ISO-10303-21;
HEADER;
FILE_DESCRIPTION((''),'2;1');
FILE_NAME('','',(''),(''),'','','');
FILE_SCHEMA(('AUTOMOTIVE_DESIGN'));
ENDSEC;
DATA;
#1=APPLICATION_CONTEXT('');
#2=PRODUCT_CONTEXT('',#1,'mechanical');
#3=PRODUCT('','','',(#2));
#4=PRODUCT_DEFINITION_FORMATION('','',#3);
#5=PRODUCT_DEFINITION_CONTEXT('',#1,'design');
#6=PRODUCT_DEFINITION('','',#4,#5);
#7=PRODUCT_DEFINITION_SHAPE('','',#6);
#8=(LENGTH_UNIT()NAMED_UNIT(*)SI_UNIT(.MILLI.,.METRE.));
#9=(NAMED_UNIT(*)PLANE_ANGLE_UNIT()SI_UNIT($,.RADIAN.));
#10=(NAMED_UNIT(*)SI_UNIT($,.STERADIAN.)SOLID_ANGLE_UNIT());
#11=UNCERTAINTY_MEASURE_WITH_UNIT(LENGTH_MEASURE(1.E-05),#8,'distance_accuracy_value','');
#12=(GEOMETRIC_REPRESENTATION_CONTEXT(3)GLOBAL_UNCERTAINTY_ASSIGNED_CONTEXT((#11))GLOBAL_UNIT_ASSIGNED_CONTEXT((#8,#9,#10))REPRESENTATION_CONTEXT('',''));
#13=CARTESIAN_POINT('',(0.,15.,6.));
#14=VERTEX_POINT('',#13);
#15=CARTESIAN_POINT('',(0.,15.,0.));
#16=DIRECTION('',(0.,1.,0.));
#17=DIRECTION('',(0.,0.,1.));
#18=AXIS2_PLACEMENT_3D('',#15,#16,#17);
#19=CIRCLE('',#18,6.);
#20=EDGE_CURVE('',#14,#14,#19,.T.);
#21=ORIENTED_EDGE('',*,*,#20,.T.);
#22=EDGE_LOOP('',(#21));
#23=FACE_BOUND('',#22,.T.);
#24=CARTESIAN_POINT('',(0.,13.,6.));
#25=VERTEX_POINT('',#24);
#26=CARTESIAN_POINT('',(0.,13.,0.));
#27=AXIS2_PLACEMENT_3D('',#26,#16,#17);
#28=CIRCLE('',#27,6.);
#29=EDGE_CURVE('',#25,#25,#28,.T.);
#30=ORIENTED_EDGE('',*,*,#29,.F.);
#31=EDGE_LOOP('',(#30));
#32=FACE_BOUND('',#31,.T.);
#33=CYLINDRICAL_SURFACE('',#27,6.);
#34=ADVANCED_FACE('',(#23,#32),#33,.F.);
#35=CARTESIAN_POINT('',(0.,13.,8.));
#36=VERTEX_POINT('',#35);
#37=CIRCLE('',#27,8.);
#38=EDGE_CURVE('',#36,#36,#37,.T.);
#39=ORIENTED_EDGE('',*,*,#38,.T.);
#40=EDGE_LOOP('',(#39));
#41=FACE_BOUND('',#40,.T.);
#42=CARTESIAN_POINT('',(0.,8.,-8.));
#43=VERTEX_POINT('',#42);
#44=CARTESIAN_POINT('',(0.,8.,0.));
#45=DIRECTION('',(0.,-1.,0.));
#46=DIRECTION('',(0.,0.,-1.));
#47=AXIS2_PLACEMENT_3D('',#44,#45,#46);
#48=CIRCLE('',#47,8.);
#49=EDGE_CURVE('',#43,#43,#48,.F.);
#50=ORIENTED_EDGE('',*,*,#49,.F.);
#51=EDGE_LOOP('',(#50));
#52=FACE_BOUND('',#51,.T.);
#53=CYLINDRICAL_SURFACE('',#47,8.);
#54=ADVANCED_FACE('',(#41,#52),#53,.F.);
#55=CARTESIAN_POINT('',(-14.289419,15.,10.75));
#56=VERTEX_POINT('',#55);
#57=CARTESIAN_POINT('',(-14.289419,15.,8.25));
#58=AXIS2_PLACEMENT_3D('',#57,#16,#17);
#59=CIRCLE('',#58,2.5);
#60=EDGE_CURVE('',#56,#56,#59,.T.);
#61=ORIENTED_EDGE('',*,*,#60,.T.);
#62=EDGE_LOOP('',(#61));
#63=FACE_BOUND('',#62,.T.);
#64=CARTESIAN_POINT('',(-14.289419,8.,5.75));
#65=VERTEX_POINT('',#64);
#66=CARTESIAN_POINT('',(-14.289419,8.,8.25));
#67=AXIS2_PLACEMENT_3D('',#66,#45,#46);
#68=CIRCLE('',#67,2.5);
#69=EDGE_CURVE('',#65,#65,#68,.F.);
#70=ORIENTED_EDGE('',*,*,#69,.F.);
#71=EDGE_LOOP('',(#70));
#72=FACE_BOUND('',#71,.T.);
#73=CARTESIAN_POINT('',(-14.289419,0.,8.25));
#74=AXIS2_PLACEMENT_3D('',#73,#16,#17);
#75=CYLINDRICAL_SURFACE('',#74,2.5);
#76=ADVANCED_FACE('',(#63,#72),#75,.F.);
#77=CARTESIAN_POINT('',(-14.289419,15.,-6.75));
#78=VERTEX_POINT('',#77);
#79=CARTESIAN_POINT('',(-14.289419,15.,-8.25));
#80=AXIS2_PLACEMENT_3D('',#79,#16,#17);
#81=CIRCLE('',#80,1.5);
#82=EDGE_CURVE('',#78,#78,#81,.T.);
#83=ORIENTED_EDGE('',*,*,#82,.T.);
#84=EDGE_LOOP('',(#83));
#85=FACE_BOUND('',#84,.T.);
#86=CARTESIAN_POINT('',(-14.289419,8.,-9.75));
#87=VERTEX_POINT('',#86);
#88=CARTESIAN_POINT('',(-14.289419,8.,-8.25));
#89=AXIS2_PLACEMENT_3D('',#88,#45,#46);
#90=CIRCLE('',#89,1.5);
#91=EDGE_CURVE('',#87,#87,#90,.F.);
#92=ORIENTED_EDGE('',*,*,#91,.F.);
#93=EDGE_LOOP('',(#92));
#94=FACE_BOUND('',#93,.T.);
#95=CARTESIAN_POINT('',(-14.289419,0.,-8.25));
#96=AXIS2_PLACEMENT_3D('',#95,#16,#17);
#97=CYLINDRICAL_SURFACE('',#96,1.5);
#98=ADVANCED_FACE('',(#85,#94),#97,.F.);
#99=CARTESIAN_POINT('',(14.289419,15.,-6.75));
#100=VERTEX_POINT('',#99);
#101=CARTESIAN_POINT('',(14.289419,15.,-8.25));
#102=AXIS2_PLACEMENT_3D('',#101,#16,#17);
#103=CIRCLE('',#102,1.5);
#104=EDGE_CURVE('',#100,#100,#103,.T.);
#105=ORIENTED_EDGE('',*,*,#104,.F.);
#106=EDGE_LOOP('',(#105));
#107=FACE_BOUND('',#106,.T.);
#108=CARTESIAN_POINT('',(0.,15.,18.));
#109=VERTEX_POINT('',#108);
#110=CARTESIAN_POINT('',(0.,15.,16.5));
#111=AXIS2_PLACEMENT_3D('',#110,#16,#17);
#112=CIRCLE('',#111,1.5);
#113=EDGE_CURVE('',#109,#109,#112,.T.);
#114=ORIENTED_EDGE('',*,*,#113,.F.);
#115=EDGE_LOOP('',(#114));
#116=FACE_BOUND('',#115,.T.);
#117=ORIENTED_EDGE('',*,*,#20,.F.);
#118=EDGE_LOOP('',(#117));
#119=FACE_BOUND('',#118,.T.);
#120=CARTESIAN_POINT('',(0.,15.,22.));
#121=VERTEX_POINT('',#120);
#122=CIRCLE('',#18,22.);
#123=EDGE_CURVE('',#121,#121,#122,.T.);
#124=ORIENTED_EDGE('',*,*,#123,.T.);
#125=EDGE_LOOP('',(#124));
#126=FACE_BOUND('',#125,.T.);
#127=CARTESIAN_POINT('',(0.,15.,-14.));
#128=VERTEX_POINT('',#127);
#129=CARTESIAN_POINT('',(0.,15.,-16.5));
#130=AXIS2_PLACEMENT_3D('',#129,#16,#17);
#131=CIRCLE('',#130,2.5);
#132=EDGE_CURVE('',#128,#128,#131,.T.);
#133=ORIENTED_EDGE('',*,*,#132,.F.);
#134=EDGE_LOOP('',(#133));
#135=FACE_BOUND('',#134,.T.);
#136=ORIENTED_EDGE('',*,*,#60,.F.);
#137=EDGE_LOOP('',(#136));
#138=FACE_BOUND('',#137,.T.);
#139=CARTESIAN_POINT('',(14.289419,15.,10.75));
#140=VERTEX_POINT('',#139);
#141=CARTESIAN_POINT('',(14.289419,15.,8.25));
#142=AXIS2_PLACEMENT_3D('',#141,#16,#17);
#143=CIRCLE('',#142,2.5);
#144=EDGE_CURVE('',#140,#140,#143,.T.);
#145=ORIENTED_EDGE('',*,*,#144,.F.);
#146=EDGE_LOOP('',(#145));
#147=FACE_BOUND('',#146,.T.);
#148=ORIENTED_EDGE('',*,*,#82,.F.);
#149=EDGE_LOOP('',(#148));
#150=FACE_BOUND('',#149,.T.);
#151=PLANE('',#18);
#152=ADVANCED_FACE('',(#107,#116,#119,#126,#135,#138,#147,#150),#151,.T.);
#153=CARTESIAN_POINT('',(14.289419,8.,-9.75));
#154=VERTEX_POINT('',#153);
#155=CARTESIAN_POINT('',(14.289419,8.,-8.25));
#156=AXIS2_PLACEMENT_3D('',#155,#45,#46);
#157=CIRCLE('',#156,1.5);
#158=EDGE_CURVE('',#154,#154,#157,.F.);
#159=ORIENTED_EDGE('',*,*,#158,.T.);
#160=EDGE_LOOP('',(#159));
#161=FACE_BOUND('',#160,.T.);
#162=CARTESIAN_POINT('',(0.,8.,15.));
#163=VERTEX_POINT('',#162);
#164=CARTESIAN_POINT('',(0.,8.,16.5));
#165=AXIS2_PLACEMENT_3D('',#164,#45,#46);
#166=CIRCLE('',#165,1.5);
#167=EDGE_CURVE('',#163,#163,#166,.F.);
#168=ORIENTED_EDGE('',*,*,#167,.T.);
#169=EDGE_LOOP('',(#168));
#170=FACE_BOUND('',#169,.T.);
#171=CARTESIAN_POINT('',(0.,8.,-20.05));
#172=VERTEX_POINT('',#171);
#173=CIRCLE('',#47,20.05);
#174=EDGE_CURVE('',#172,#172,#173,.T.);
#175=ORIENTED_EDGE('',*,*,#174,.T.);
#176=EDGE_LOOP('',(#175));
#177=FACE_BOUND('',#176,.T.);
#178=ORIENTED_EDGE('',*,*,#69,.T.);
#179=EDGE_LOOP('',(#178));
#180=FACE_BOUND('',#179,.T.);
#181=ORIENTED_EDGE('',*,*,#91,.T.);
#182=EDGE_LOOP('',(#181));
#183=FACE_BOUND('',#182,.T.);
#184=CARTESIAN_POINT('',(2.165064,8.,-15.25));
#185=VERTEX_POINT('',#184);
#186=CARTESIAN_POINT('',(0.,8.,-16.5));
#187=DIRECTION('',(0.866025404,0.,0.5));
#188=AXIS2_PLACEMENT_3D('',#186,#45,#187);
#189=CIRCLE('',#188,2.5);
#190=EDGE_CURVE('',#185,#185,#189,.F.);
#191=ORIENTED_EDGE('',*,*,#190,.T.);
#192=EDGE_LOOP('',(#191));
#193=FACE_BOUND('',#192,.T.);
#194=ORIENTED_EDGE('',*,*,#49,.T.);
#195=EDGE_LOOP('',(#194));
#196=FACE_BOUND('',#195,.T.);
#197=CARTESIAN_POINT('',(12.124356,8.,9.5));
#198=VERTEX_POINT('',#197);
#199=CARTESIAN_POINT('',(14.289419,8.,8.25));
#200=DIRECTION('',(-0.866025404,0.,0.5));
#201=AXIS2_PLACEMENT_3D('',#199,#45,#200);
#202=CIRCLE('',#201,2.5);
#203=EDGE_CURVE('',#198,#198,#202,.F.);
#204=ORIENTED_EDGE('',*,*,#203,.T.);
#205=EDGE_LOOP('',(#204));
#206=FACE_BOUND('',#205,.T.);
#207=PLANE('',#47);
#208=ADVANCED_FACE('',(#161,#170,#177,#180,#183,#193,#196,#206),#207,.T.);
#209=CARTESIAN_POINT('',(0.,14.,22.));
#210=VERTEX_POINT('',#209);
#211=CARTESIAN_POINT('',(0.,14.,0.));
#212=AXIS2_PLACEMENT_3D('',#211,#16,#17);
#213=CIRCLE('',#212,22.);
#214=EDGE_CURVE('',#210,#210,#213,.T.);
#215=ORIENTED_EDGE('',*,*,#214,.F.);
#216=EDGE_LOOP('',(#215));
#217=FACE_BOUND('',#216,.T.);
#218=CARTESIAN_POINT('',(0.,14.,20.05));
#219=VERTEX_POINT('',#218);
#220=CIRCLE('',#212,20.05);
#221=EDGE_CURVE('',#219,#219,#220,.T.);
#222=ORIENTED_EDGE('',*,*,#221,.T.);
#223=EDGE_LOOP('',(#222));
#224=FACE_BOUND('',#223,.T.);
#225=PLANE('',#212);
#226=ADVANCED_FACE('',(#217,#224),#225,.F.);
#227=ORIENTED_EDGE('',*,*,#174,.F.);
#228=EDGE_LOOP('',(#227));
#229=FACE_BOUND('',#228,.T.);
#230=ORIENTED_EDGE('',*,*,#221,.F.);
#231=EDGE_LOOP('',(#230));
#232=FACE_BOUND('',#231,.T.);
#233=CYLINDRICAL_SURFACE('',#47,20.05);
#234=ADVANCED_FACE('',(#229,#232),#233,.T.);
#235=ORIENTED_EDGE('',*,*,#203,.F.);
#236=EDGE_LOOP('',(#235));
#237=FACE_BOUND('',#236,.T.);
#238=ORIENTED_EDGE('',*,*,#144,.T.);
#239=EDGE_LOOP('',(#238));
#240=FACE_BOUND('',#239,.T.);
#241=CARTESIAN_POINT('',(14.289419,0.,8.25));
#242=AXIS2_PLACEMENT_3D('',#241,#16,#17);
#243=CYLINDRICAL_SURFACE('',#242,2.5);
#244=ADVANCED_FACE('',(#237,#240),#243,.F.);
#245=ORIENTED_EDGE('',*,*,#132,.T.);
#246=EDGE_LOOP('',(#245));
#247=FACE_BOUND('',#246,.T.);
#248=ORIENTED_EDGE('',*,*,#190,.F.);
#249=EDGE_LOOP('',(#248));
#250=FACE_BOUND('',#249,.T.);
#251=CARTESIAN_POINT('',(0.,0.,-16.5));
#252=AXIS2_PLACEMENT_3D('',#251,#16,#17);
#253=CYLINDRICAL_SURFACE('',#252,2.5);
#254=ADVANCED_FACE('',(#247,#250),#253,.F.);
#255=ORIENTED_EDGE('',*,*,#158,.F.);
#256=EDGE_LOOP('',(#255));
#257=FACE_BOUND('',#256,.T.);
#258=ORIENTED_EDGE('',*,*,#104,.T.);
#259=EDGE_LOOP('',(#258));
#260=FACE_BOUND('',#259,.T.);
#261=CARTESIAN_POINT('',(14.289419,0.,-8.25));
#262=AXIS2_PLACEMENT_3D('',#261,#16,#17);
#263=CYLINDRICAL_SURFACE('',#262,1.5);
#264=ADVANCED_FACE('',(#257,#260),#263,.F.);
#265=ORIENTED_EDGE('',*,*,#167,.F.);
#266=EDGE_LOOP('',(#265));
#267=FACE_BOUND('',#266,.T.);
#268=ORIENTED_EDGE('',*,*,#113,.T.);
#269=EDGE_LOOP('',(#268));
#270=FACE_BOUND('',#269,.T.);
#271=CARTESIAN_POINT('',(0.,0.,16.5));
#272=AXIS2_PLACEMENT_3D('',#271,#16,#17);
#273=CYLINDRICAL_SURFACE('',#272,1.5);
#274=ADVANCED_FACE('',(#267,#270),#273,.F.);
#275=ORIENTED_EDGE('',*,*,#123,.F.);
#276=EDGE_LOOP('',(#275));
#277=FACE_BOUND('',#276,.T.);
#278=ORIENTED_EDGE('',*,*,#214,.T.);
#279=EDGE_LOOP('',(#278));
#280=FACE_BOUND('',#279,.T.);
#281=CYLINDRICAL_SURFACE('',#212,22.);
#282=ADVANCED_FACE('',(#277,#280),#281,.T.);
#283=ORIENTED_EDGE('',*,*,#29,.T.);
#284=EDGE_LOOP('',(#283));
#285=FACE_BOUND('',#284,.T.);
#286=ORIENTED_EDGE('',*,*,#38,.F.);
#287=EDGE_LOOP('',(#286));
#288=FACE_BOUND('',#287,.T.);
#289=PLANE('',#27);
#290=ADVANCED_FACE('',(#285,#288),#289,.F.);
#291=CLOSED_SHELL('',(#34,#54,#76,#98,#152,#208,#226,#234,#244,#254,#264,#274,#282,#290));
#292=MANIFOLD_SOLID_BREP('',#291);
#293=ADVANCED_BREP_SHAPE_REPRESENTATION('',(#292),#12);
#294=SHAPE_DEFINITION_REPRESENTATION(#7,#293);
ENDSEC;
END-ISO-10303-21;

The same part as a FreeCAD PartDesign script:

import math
import FreeCAD as App
import Part
import Sketcher
from FreeCAD import Vector


def edges_at(feature, points):
    """Names of the edges that pass closest to the given points."""
    edges = feature.Shape.Edges
    near = lambda p: min(range(len(edges)), key=lambda i: edges[i].distToShape(Part.Vertex(*p))[0])
    return sorted({f"Edge{near(p) + 1}" for p in points})

doc = App.newDocument("Part")
body = doc.addObject("PartDesign::Body", "Body")

# Sketch on XZ plane
sketch1 = doc.addObject("Sketcher::SketchObject", "Sketch")
body.addObject(sketch1)
sketch1.AttachmentSupport = (doc.XZ_Plane, [""])
sketch1.MapMode = "FlatFace"
sketch1.addGeometry([
    Part.Circle(Vector(0, 0, 0), Vector(0, 0, 1), 20),
    Part.Circle(Vector(0, 0, 0), Vector(0, 0, 1), 8),
], False)
sketch1.addConstraint([
    Sketcher.Constraint("Coincident", 0, 3, -1, 1),
    Sketcher.Constraint("Coincident", 1, 3, -1, 1),
    Sketcher.Constraint("Diameter", 1, 16.0),
    Sketcher.Constraint("Diameter", 0, 40.1),
])
pad1 = doc.addObject("PartDesign::Pad", "Pad")
body.addObject(pad1)
pad1.Profile = sketch1
pad1.Length = 8
pad1.Reversed = True

# Sketch on XZ plane
sketch2 = doc.addObject("Sketcher::SketchObject", "Sketch001")
body.addObject(sketch2)
sketch2.AttachmentSupport = (doc.XZ_Plane, [""])
sketch2.MapMode = "FlatFace"
sketch2.AttachmentOffset = App.Placement(Vector(0, 0, -8), App.Rotation())
sketch2.addGeometry([
    Part.Circle(Vector(0, 0, 0), Vector(0, 0, 1), 20),
    Part.Circle(Vector(0, 0, 0), Vector(0, 0, 1), 8),
], False)
sketch2.addConstraint([
    Sketcher.Constraint("Coincident", 0, 3, -1, 1),
    Sketcher.Constraint("Coincident", 1, 3, -1, 1),
    Sketcher.Constraint("Diameter", 1, 16.0),
    Sketcher.Constraint("Diameter", 0, 40.1),
])
pad2 = doc.addObject("PartDesign::Pad", "Pad001")
body.addObject(pad2)
pad2.Profile = sketch2
pad2.Length = 7
pad2.Reversed = True

# Sketch on XZ plane
sketch3 = doc.addObject("Sketcher::SketchObject", "Sketch002")
body.addObject(sketch3)
sketch3.AttachmentSupport = (doc.XZ_Plane, [""])
sketch3.MapMode = "FlatFace"
sketch3.AttachmentOffset = App.Placement(Vector(0, 0, -13), App.Rotation())
sketch3.addGeometry([
    Part.Circle(Vector(0, 0, 0), Vector(0, 0, 1), 8),
    Part.Circle(Vector(0, 0, 0), Vector(0, 0, 1), 6),
], False)
sketch3.addConstraint([
    Sketcher.Constraint("Coincident", 0, 3, -1, 1),
    Sketcher.Constraint("Coincident", 1, 3, -1, 1),
    Sketcher.Constraint("Diameter", 0, 16.0),
    Sketcher.Constraint("Diameter", 1, 12.0),
])
pad3 = doc.addObject("PartDesign::Pad", "Pad002")
body.addObject(pad3)
pad3.Profile = sketch3
pad3.Length = 2
pad3.Reversed = True

# Sketch on XZ plane
sketch4 = doc.addObject("Sketcher::SketchObject", "Sketch003")
body.addObject(sketch4)
sketch4.AttachmentSupport = (doc.XZ_Plane, [""])
sketch4.MapMode = "FlatFace"
sketch4.AttachmentOffset = App.Placement(Vector(0, 0, -15), App.Rotation())
sketch4.addGeometry([
    Part.Circle(Vector(0, -16.5, 0), Vector(0, 0, 1), 2.5),  # 0
    Part.Circle(Vector(14.3, 8.2, 0), Vector(0, 0, 1), 2.5),  # 1
    Part.Circle(Vector(-14.3, 8.2, 0), Vector(0, 0, 1), 2.5),  # 2
    Part.Circle(Vector(0, 16.5, 0), Vector(0, 0, 1), 1.5),  # 3
    Part.Circle(Vector(-14.3, -8.2, 0), Vector(0, 0, 1), 1.5),  # 4
    Part.Circle(Vector(14.3, -8.2, 0), Vector(0, 0, 1), 1.5),  # 5
], False)
sketch4.addConstraint([
    Sketcher.Constraint("Equal", 0, 1),
    Sketcher.Constraint("Equal", 1, 2),
    Sketcher.Constraint("Equal", 3, 4),
    Sketcher.Constraint("Equal", 4, 5),
    Sketcher.Constraint("Symmetric", 0, 3, 3, 3, -1, 1),
    Sketcher.Constraint("Symmetric", 1, 3, 4, 3, -1, 1),
    Sketcher.Constraint("Symmetric", 2, 3, 5, 3, -1, 1),
    Sketcher.Constraint("Symmetric", 1, 3, 2, 3, -2),
    Sketcher.Constraint("PointOnObject", 0, 3, -2),
    Sketcher.Constraint("Diameter", 0, 5.0),
    Sketcher.Constraint("Diameter", 3, 3.0),
    Sketcher.Constraint("DistanceY", 0, 3, 3, 3, 33.0),
    Sketcher.Constraint("DistanceY", 4, 3, 2, 3, 16.5),
    Sketcher.Constraint("DistanceX", -1, 1, 1, 3, 14.289419),
])
pocket1 = doc.addObject("PartDesign::Pocket", "Pocket")
body.addObject(pocket1)
pocket1.Profile = sketch4
pocket1.Type = "ThroughAll"
pocket1.Reversed = True

# Sketch on XZ plane
sketch5 = doc.addObject("Sketcher::SketchObject", "Sketch004")
body.addObject(sketch5)
sketch5.AttachmentSupport = (doc.XZ_Plane, [""])
sketch5.MapMode = "FlatFace"
sketch5.addGeometry([
    Part.ArcOfCircle(Part.Circle(Vector(0, 0, 0), Vector(0, 0, 1), 8), math.radians(108.19), math.radians(114.62)),  # 0
    Part.LineSegment(Vector(-2.5, 7.6, 0), Vector(-6.3, 19, 0)),  # 1
    Part.ArcOfCircle(Part.Circle(Vector(0, 0, 0), Vector(0, 0, 1), 20), math.radians(108.19), math.radians(116.74)),  # 2
    Part.ArcOfCircle(Part.Circle(Vector(0, 0, 0), Vector(0, 0, 1), 20), math.radians(117), math.radians(183)),  # 3
    Part.ArcOfCircle(Part.Circle(Vector(0, 0, 0), Vector(0, 0, 1), 20), math.radians(-176.74), math.radians(-168.19)),  # 4
    Part.LineSegment(Vector(-19.6, -4.1, 0), Vector(-7.8, -1.6, 0)),  # 5
    Part.ArcOfCircle(Part.Circle(Vector(0, 0, 0), Vector(0, 0, 1), 8), math.radians(-174.62), math.radians(-168.19)),  # 6
    Part.ArcOfCircle(Part.Circle(Vector(0, 0, 0), Vector(0, 0, 1), 8), math.radians(115), math.radians(185)),  # 7
    Part.Circle(Vector(-14.3, 8.2, 0), Vector(0, 0, 1), 2.5),  # 8
], False)
sketch5.addConstraint([
    Sketcher.Constraint("Coincident", 0, 1, 1, 1),
    Sketcher.Constraint("Coincident", 1, 2, 2, 1),
    Sketcher.Constraint("Tangent", 2, 2, 3, 1),
    Sketcher.Constraint("Tangent", 3, 2, 4, 1),
    Sketcher.Constraint("Coincident", 4, 2, 5, 1),
    Sketcher.Constraint("Coincident", 5, 2, 6, 2),
    Sketcher.Constraint("Tangent", 6, 1, 7, 2),
    Sketcher.Constraint("Tangent", 7, 1, 0, 2),
    Sketcher.Constraint("Coincident", 0, 3, -1, 1),
    Sketcher.Constraint("Coincident", 2, 3, -1, 1),
    Sketcher.Constraint("Coincident", 4, 3, -1, 1),
    Sketcher.Constraint("Coincident", 6, 3, -1, 1),
    Sketcher.Constraint("Diameter", 8, 5.0),
    Sketcher.Constraint("Radius", 0, 8.0),
    Sketcher.Constraint("Radius", 2, 20.05),
    Sketcher.Constraint("DistanceY", -1, 1, 8, 3, 8.25),
    Sketcher.Constraint("DistanceX", 2, 2, 0, 1, 6.523401),
    Sketcher.Constraint("DistanceX", 8, 3, -1, 1, 14.289419),
    Sketcher.Constraint("DistanceX", 0, 1, -1, 1, 2.497311),
    Sketcher.Constraint("DistanceY", 4, 2, -1, 1, 4.103679),
    Sketcher.Constraint("DistanceY", 5, 2, -1, 1, 1.637378),
    Sketcher.Constraint("DistanceY", 0, 1, 1, 2, 11.447841),
    Sketcher.Constraint("DistanceX", 3, 2, 4, 2, 0.391961),
    Sketcher.Constraint("DistanceX", 6, 1, 6, 3, 7.964772),
    Sketcher.Constraint("DistanceX", 7, 1, 0, 1, 0.835612),
])
pocket2 = doc.addObject("PartDesign::Pocket", "Pocket001")
body.addObject(pocket2)
pocket2.Profile = sketch5
pocket2.Length = 8
doc.recompute()

polarpattern = doc.addObject("PartDesign::PolarPattern", "PolarPattern")
body.addObject(polarpattern)
polarpattern.Originals = [pocket2]
polarpattern.Axis = (doc.Y_Axis, [""])
polarpattern.Angle = 360
polarpattern.Occurrences = 3
body.Tip = polarpattern
doc.recompute()

fillet = doc.addObject("PartDesign::Fillet", "Fillet")
body.addObject(fillet)
fillet.Base = (polarpattern, edges_at(polarpattern, [
    (-7.831, 4, -1.637),
    (-19.626, 4, -4.104),
    (-6.259, 4, 19.048),
    (-2.497, 4, 7.6),
    (2.497, 4, 7.6),
    (6.259, 4, 19.048),
    (19.626, 4, -4.104),
    (7.831, 4, -1.637),
    (5.333, 4, -5.963),
    (13.367, 4, -14.944),
    (-13.367, 4, -14.944),
    (-5.333, 4, -5.963),
]))
fillet.Radius = 2

# Sketch on XZ plane
sketch6 = doc.addObject("Sketcher::SketchObject", "Sketch005")
body.addObject(sketch6)
sketch6.AttachmentSupport = (doc.XZ_Plane, [""])
sketch6.MapMode = "FlatFace"
sketch6.AttachmentOffset = App.Placement(Vector(0, 0, -14), App.Rotation())
sketch6.addGeometry([
    Part.Circle(Vector(0, 0, 0), Vector(0, 0, 1), 22),
    Part.Circle(Vector(0, 0, 0), Vector(0, 0, 1), 20),
], False)
sketch6.addConstraint([
    Sketcher.Constraint("Coincident", 0, 3, -1, 1),
    Sketcher.Constraint("Coincident", 1, 3, -1, 1),
    Sketcher.Constraint("Diameter", 0, 44.0),
    Sketcher.Constraint("Diameter", 1, 40.1),
])
pad4 = doc.addObject("PartDesign::Pad", "Pad003")
body.addObject(pad4)
pad4.Profile = sketch6
pad4.Length = 1
pad4.Reversed = True

# Sketch on XZ plane
sketch7 = doc.addObject("Sketcher::SketchObject", "Sketch006")
body.addObject(sketch7)
sketch7.AttachmentSupport = (doc.XZ_Plane, [""])
sketch7.MapMode = "FlatFace"
sketch7.AttachmentOffset = App.Placement(Vector(0, 0, -8), App.Rotation())
sketch7.addGeometry([
    Part.ArcOfCircle(Part.Circle(Vector(0, 0, 0), Vector(0, 0, 1), 20), math.radians(-18), math.radians(78)),  # 0
    Part.ArcOfCircle(Part.Circle(Vector(0, 0, 0), Vector(0, 0, 1), 20.1), math.radians(78), math.radians(342)),  # 1
    Part.ArcOfCircle(Part.Circle(Vector(0, 0, 0), Vector(0, 0, 1), 8), math.radians(-23), math.radians(83)),  # 2
    Part.ArcOfCircle(Part.Circle(Vector(0, 0, 0), Vector(0, 0, 1), 8), math.radians(83), math.radians(337)),  # 3
    Part.Circle(Vector(14.3, 8.2, 0), Vector(0, 0, 1), 2.5),  # 4
], False)
sketch7.addConstraint([
    Sketcher.Constraint("Tangent", 0, 1, 1, 2),
    Sketcher.Constraint("Coincident", 1, 1, 0, 2),
    Sketcher.Constraint("Tangent", 2, 1, 3, 2),
    Sketcher.Constraint("Coincident", 3, 1, 2, 2),
    Sketcher.Constraint("Coincident", 0, 3, -1, 1),
    Sketcher.Constraint("Coincident", 2, 3, -1, 1),
    Sketcher.Constraint("Diameter", 4, 5.0),
    Sketcher.Constraint("Radius", 2, 8.0),
    Sketcher.Constraint("Radius", 0, 20.05),
    Sketcher.Constraint("DistanceY", -1, 1, 4, 3, 8.25),
    Sketcher.Constraint("DistanceX", -1, 1, 4, 3, 14.289419),
    Sketcher.Constraint("DistanceY", -1, 1, 1, 1, 19.624281),
    Sketcher.Constraint("DistanceX", -1, 1, 3, 1, 0.92681),
    Sketcher.Constraint("DistanceY", 0, 1, 2, 1, 3.082561),
    Sketcher.Constraint("DistanceX", -1, 1, 0, 1, 19.050004),
])
pocket3 = doc.addObject("PartDesign::Pocket", "Pocket002")
body.addObject(pocket3)
pocket3.Profile = sketch7
pocket3.Length = 33.124757
pocket3.Reversed = True

doc.recompute()
